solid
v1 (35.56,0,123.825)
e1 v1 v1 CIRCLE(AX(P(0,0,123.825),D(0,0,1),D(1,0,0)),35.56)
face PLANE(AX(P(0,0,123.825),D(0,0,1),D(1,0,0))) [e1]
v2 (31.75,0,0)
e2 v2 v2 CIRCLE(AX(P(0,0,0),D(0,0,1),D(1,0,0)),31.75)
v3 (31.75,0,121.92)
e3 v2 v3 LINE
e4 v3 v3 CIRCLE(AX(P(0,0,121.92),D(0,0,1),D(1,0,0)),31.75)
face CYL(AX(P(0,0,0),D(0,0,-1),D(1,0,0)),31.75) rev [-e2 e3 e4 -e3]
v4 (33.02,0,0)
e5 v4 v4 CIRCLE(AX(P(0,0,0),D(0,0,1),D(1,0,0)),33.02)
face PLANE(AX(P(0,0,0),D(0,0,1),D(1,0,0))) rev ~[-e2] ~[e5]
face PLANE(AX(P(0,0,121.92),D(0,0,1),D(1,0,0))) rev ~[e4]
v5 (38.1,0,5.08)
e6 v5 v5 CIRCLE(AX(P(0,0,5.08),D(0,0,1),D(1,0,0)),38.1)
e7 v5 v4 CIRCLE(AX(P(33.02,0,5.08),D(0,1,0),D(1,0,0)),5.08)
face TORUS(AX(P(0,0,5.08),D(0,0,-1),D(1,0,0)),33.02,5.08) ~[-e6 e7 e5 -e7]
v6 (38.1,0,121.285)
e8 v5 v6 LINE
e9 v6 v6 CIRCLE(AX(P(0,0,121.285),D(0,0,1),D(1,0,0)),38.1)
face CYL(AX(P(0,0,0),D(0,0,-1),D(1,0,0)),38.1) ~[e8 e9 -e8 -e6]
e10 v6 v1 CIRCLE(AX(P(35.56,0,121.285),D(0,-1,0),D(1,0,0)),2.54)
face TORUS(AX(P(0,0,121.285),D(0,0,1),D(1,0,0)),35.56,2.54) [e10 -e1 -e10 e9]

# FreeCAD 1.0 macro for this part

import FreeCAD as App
import Part
import Sketcher
Q = App.Units.Quantity


def edges_at(feature, points):
    """Names of the edges that pass closest to the given points."""
    edges = feature.Shape.Edges
    near = lambda p: min(range(len(edges)), key=lambda i: edges[i].distToShape(Part.Vertex(*p))[0])
    return sorted({f"Edge{near(p) + 1}" for p in points})

doc = App.newDocument("Part")
body = doc.addObject("PartDesign::Body", "Body")

# Sketch on XY plane
sketch1 = body.newObject("Sketcher::SketchObject", "Sketch")
sketch1.AttachmentSupport = (doc.getObject("XY_Plane"), [""])
sketch1.MapMode = "FlatFace"
sketch1.addGeometry(Part.Circle(App.Vector(0, 0, 0), App.Vector(0, 0, 1), 38.1), False)
sketch1.addConstraint([
    Sketcher.Constraint("Coincident", 0, 3, -1, 1),
    Sketcher.Constraint("Diameter", 0, Q("3 in")),
])
pad1 = body.newObject("PartDesign::Pad", "Pad")
pad1.Profile = sketch1
pad1.Length = Q("4.875 in")

# Sketch on XY plane
sketch2 = body.newObject("Sketcher::SketchObject", "Sketch001")
sketch2.AttachmentSupport = (doc.getObject("XY_Plane"), [""])
sketch2.MapMode = "FlatFace"
sketch2.addGeometry(Part.Circle(App.Vector(0, 0, 0), App.Vector(0, 0, 1), 31.75), False)
sketch2.addConstraint([
    Sketcher.Constraint("Coincident", 0, 3, -1, 1),
    Sketcher.Constraint("Diameter", 0, Q("2.5 in")),
])
pocket1 = body.newObject("PartDesign::Pocket", "Pocket")
pocket1.Profile = sketch2
pocket1.Length = Q("4.8 in")
pocket1.Reversed = True
doc.recompute()

fillet = body.newObject("PartDesign::Fillet", "Fillet")
fillet.Base = (pocket1, edges_at(pocket1, [(-38.1, 0, 0)]))
fillet.Radius = Q("0.2 in")
doc.recompute()

fillet2 = body.newObject("PartDesign::Fillet", "Fillet001")
fillet2.Base = (fillet, edges_at(fillet, [(-38.1, 0, 123.825)]))
fillet2.Radius = Q("0.1 in")

doc.recompute()
